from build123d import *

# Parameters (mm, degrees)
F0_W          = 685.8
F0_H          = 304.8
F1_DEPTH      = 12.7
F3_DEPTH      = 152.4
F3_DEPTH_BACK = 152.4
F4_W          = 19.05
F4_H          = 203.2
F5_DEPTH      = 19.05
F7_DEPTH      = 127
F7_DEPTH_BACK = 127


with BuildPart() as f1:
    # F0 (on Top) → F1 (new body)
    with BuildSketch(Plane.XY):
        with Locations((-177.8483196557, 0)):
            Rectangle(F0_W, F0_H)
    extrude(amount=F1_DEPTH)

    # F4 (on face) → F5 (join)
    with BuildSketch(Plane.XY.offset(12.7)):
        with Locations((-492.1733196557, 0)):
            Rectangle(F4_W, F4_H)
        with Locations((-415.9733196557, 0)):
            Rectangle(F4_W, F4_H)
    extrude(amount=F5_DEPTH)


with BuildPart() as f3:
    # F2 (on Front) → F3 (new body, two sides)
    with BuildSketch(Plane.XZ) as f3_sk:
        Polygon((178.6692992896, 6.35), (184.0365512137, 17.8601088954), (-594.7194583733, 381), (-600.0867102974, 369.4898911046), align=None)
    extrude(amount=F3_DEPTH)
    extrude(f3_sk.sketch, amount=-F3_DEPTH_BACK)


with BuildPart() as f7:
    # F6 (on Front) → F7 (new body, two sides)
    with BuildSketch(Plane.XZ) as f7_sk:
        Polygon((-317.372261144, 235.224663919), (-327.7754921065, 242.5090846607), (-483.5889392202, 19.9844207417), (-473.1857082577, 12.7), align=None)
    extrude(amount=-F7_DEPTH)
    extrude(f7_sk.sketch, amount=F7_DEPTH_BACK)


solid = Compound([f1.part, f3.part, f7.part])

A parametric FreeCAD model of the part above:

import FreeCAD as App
import Part
import Sketcher

V = App.Vector
Q = App.Units.Quantity


def add_polygon(sketch, points):
    """Adds a closed chain of lines whose ends are joined by coincident constraints."""
    first, n = sketch.GeometryCount, len(points)
    for a, b in zip(points, points[1:] + points[:1]):
        sketch.addGeometry(Part.LineSegment(App.Vector(*a, 0), App.Vector(*b, 0)), False)
    for i in range(n):
        sketch.addConstraint(Sketcher.Constraint("Coincident", first + i, 2, first + (i + 1) % n, 1))

doc = App.newDocument("Part")
body = doc.addObject("PartDesign::Body", "Body")

sketch1 = body.newObject("Sketcher::SketchObject", "Sketch")
sketch1.AttachmentSupport = (doc.getObject("XY_Plane"), [""])
sketch1.MapMode = "FlatFace"
add_polygon(sketch1, [(-520.74832, 152.4), (-520.74832, -152.4), (165.05168, -152.4), (165.05168, 152.4)])
sketch1.addConstraint(Sketcher.Constraint("Vertical", 0))
sketch1.addConstraint(Sketcher.Constraint("Horizontal", 1))
sketch1.addConstraint(Sketcher.Constraint("Vertical", 2))
sketch1.addConstraint(Sketcher.Constraint("Horizontal", 3))
sketch1.addConstraint(Sketcher.Constraint("DistanceX", 1, 1, 1, 2, Q("27 in")))
sketch1.addConstraint(Sketcher.Constraint("DistanceY", 0, 2, 0, 1, Q("12 in")))
sketch1.addConstraint(Sketcher.Constraint("DistanceY", 0, 2, -1, 1, Q("6 in")))
sketch1.addConstraint(Sketcher.Constraint("DistanceX", 0, 2, -1, 1, 520.74832))
pad1 = body.newObject("PartDesign::Pad", "Pad")
pad1.Profile = sketch1
pad1.Length = Q("0.5 in")

sketch2 = body.newObject("Sketcher::SketchObject", "Sketch001")
sketch2.AttachmentSupport = (doc.getObject("XY_Plane"), [""])
sketch2.MapMode = "FlatFace"
sketch2.AttachmentOffset = App.Placement(V(0, 0, 0.5 * 25.4), App.Rotation())
add_polygon(sketch2, [(-501.69832, 101.6), (-501.69832, -101.6), (-482.64832, -101.6), (-482.64832, 101.6)])
add_polygon(sketch2, [(-425.49832, 101.6), (-425.49832, -101.6), (-406.44832, -101.6), (-406.44832, 101.6)])
sketch2.addConstraint(Sketcher.Constraint("Vertical", 0))
sketch2.addConstraint(Sketcher.Constraint("Horizontal", 1))
sketch2.addConstraint(Sketcher.Constraint("Vertical", 2))
sketch2.addConstraint(Sketcher.Constraint("Horizontal", 3))
sketch2.addConstraint(Sketcher.Constraint("Vertical", 4))
sketch2.addConstraint(Sketcher.Constraint("Horizontal", 5))
sketch2.addConstraint(Sketcher.Constraint("Vertical", 6))
sketch2.addConstraint(Sketcher.Constraint("Horizontal", 7))
sketch2.addConstraint(Sketcher.Constraint("Horizontal", 1, 2, 4, 2))
sketch2.addConstraint(Sketcher.Constraint("Horizontal", 3, 2, 6, 2))
sketch2.addConstraint(Sketcher.Constraint("Equal", 3, 5))
sketch2.addConstraint(Sketcher.Constraint("DistanceY", 0, 2, 0, 1, Q("8 in")))
sketch2.addConstraint(Sketcher.Constraint("DistanceY", 0, 2, -1, 1, Q("4 in")))
sketch2.addConstraint(Sketcher.Constraint("DistanceX", 0, 2, 4, 2, Q("3 in")))
sketch2.addConstraint(Sketcher.Constraint("DistanceX", 1, 1, 1, 2, Q("0.75 in")))
sketch2.addConstraint(Sketcher.Constraint("DistanceX", 0, 2, -1, 1, 501.69832))
pad2 = body.newObject("PartDesign::Pad", "Pad001")
pad2.Profile = sketch2
pad2.Length = Q("0.75 in")
body2 = doc.addObject("PartDesign::Body", "Body001")

sketch3 = body2.newObject("Sketcher::SketchObject", "Sketch002")
sketch3.AttachmentSupport = (doc.getObject("XZ_Plane001"), [""])
sketch3.MapMode = "FlatFace"
add_polygon(sketch3, [(178.669299, 6.35), (184.036551, 17.860109), (-594.719458, 381), (-600.08671, 369.489891)])
sketch3.addConstraint(Sketcher.Constraint("Perpendicular", 0, 1))
sketch3.addConstraint(Sketcher.Constraint("Perpendicular", 1, 2))
sketch3.addConstraint(Sketcher.Constraint("Perpendicular", 2, 3))
sketch3.addConstraint(Sketcher.Constraint("DistanceY", -1, 1, 1, 2, Q("15 in")))
sketch3.addConstraint(Sketcher.Constraint("Angle", 0, Q("65 deg")))
sketch3.addConstraint(Sketcher.Constraint("Distance", 0, Q("0.5 in")))
sketch3.addConstraint(Sketcher.Constraint("DistanceY", -1, 1, 3, 2, Q("0.25 in")))
sketch3.addConstraint(Sketcher.Constraint("DistanceX", -1, 1, 3, 2, 178.669299))
pad3 = body2.newObject("PartDesign::Pad", "Pad002")
pad3.Profile = sketch3
pad3.Type = "TwoLengths"
pad3.Length = Q("6 in")
pad3.Length2 = Q("6 in")
body3 = doc.addObject("PartDesign::Body", "Body002")

sketch4 = body3.newObject("Sketcher::SketchObject", "Sketch003")
sketch4.AttachmentSupport = (doc.getObject("XZ_Plane002"), [""])
sketch4.MapMode = "FlatFace"
add_polygon(sketch4, [(-317.372261, 235.224664), (-327.775492, 242.509085), (-483.588939, 19.984421), (-473.185708, 12.7)])
sketch4.addConstraint(Sketcher.Constraint("Perpendicular", 0, 1))
sketch4.addConstraint(Sketcher.Constraint("Perpendicular", 1, 2))
sketch4.addConstraint(Sketcher.Constraint("Perpendicular", 2, 3))
sketch4.addConstraint(Sketcher.Constraint("Angle", 0, Q("145 deg")))
sketch4.addConstraint(Sketcher.Constraint("Distance", 0, Q("0.5 in")))
sketch4.addConstraint(Sketcher.Constraint("DistanceY", -1, 1, 2, 2, Q("0.5 in")))
sketch4.addConstraint(Sketcher.Constraint("DistanceX", 1, 2, -1, 1, 483.588939))
sketch4.addConstraint(Sketcher.Constraint("DistanceX", 3, 2, -1, 1, 317.372261))
pad4 = body3.newObject("PartDesign::Pad", "Pad003")
pad4.Profile = sketch4
pad4.Type = "TwoLengths"
pad4.Length = Q("5 in")
pad4.Length2 = Q("5 in")
pad4.Reversed = True

doc.recompute()
